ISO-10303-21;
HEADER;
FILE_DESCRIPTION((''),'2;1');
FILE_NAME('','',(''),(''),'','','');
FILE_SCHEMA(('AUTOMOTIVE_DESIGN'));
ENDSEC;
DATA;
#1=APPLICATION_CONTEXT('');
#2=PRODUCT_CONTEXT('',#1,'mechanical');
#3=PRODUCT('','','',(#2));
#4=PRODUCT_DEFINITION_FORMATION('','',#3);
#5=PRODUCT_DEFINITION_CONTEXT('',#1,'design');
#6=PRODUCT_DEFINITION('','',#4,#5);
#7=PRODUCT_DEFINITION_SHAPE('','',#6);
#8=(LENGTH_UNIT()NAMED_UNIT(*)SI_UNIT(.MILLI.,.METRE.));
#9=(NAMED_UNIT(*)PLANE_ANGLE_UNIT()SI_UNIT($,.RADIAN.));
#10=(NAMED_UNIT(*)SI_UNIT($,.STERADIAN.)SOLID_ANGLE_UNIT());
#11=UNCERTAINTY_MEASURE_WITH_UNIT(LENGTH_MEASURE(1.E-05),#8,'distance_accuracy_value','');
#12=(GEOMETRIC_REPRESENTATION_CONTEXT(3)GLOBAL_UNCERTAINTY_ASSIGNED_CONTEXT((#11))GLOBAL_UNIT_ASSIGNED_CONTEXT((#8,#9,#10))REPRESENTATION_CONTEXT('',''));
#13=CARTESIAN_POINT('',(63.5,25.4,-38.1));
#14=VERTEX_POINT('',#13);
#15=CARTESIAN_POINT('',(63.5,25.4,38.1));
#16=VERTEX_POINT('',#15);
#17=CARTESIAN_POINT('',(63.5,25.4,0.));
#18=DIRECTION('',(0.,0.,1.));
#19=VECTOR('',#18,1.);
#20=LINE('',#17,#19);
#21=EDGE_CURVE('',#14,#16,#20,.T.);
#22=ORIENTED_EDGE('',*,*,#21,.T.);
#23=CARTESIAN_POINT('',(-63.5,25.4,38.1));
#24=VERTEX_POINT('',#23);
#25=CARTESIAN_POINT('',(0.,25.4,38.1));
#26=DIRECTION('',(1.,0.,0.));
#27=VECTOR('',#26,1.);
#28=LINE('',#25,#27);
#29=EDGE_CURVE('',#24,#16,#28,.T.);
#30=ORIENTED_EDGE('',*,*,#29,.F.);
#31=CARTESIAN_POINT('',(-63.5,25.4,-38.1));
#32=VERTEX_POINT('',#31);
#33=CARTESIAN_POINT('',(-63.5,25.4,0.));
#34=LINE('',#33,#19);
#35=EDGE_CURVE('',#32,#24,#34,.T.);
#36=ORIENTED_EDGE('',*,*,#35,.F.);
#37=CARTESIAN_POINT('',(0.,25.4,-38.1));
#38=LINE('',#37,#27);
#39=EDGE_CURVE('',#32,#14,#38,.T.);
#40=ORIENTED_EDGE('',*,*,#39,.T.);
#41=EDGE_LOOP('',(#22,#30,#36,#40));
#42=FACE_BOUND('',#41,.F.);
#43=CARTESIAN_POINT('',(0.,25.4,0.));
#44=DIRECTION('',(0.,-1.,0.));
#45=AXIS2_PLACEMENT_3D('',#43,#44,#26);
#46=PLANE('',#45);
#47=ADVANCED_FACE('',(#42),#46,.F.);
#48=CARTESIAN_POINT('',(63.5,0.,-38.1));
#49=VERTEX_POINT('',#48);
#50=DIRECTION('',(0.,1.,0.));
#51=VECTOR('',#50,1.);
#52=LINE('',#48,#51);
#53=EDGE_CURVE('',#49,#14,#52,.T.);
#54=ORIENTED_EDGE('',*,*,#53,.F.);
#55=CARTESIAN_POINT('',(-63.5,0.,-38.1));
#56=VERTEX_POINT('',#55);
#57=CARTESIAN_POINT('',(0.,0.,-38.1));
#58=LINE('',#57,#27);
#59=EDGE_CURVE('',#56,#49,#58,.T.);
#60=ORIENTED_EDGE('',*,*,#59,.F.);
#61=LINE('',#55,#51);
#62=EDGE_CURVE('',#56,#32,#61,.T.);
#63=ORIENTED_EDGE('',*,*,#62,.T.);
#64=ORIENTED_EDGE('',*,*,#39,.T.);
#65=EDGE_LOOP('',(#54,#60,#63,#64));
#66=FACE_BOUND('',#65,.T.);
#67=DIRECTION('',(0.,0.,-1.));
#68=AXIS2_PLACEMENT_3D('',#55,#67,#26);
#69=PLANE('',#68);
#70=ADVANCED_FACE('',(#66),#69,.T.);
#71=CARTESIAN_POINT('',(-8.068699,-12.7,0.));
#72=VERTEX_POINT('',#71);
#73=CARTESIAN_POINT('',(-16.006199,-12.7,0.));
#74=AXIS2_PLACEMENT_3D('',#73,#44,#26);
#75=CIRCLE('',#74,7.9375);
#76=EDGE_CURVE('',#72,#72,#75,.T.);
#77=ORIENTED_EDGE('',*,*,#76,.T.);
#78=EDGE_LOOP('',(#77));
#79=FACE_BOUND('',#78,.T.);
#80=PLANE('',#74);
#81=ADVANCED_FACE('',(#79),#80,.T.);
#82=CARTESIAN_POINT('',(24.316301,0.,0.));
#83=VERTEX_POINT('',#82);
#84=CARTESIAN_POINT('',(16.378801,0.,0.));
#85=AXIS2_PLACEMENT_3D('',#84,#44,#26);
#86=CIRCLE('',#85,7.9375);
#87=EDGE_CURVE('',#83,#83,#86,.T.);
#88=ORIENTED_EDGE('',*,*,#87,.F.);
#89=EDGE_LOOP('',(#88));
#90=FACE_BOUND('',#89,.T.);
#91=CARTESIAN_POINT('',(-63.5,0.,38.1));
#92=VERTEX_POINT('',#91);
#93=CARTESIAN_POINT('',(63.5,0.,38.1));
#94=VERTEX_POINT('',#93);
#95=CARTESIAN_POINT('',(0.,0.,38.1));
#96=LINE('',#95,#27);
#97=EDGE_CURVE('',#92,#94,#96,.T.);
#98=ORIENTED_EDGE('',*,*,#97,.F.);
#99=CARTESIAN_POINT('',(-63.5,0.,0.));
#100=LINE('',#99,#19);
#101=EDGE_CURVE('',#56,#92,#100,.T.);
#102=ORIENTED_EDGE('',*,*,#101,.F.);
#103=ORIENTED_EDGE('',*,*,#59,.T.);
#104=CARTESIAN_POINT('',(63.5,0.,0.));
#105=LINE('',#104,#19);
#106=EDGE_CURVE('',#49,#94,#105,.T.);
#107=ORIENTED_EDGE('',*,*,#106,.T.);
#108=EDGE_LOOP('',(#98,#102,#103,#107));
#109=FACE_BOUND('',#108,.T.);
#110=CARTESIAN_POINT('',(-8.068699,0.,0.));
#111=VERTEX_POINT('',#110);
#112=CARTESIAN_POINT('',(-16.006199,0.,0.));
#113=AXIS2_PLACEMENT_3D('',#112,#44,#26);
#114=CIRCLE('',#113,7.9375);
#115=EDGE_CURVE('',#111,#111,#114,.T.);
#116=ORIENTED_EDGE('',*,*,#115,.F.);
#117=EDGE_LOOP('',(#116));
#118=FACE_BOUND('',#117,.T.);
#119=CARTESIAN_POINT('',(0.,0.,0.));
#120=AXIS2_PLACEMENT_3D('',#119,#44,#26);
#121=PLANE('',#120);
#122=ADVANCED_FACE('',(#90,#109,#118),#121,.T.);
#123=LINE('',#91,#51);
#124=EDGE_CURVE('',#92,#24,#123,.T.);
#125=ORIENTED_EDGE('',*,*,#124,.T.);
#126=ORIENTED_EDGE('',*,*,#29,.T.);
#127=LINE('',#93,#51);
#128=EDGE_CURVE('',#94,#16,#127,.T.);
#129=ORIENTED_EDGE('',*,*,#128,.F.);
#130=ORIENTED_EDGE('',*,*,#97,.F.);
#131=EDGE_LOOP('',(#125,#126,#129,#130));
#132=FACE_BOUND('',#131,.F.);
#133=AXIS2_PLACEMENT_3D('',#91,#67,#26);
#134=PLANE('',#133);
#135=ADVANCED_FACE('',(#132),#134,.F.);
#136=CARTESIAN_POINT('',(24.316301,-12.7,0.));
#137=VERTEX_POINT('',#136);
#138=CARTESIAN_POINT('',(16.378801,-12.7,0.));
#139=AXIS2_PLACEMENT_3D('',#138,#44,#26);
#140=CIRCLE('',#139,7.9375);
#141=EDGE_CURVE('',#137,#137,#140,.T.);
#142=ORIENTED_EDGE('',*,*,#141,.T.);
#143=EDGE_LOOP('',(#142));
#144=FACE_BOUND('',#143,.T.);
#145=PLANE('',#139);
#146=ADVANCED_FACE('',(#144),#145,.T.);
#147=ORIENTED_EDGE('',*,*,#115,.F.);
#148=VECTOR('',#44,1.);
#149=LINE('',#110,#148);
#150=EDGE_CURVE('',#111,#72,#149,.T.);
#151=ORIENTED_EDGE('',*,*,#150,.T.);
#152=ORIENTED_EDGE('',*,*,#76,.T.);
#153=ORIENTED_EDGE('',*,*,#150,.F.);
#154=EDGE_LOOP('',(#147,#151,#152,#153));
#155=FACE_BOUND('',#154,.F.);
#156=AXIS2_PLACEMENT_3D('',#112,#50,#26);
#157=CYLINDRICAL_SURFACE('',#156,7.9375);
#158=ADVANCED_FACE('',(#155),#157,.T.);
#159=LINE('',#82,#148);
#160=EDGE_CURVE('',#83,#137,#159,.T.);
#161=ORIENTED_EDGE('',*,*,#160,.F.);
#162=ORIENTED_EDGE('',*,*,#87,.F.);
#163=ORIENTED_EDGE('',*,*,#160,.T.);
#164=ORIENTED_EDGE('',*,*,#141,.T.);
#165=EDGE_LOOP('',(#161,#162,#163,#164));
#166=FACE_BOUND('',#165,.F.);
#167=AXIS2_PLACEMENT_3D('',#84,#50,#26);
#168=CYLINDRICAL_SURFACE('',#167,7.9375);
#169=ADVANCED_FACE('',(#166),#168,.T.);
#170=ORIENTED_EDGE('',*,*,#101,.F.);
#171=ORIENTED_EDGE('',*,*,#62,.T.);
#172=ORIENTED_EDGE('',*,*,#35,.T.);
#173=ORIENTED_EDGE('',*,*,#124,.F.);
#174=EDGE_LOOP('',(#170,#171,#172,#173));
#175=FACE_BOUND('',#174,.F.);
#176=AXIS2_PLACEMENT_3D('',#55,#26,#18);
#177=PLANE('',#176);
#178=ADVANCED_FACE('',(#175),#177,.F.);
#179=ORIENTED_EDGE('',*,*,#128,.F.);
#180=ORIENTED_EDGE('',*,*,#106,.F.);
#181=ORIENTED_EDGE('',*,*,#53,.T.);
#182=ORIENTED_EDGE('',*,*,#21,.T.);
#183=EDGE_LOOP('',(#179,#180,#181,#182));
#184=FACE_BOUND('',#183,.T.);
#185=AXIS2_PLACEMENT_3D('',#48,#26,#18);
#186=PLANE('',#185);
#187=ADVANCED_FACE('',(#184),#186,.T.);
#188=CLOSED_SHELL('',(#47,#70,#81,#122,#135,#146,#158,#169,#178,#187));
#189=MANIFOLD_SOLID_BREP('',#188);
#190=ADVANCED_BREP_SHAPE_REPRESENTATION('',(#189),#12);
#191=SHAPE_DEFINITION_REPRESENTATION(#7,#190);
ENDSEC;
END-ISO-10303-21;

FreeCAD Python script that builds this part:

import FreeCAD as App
import Part
import Sketcher
from FreeCAD import Vector
Q = App.Units.Quantity


def add_polygon(sketch, points):
    """Adds a closed chain of lines whose ends are joined by coincident constraints."""
    first, n = sketch.GeometryCount, len(points)
    for a, b in zip(points, points[1:] + points[:1]):
        sketch.addGeometry(Part.LineSegment(App.Vector(*a, 0), App.Vector(*b, 0)), False)
    for i in range(n):
        sketch.addConstraint(Sketcher.Constraint("Coincident", first + i, 2, first + (i + 1) % n, 1))

doc = App.newDocument("Part")
body = doc.addObject("PartDesign::Body", "Body")

# Sketch on XZ plane
sketch1 = doc.addObject("Sketcher::SketchObject", "Sketch")
body.addObject(sketch1)
sketch1.AttachmentSupport = (doc.XZ_Plane, [""])
sketch1.MapMode = "FlatFace"
add_polygon(sketch1, [(-64, 38), (-64, -38), (64, -38), (64, 38)])  # lines 0-3
sketch1.addConstraint(Sketcher.Constraint("Vertical", 0))
sketch1.addConstraint(Sketcher.Constraint("Horizontal", 1))
sketch1.addConstraint(Sketcher.Constraint("Vertical", 2))
sketch1.addConstraint(Sketcher.Constraint("Horizontal", 3))
sketch1.addConstraint(Sketcher.Constraint("Symmetric", 0, 2, 2, 2, -1, 1))
sketch1.addConstraint(Sketcher.Constraint("DistanceX", 1, 1, 1, 2, Q("5 in")))
sketch1.addConstraint(Sketcher.Constraint("DistanceY", 0, 2, 0, 1, Q("3 in")))
pad1 = doc.addObject("PartDesign::Pad", "Pad")
body.addObject(pad1)
pad1.Profile = sketch1
pad1.Length = Q("1 in")
pad1.Reversed = True

# Sketch on XZ plane
sketch2 = doc.addObject("Sketcher::SketchObject", "Sketch001")
body.addObject(sketch2)
sketch2.AttachmentSupport = (doc.XZ_Plane, [""])
sketch2.MapMode = "FlatFace"
sketch2.addGeometry(Part.Circle(Vector(-16, 0, 0), Vector(0, 0, 1), 8), False)
sketch2.addGeometry(Part.Circle(Vector(16, 0, 0), Vector(0, 0, 1), 8), False)
sketch2.addConstraint(Sketcher.Constraint("Equal", 0, 1))
sketch2.addConstraint(Sketcher.Constraint("PointOnObject", 0, 3, -1))
sketch2.addConstraint(Sketcher.Constraint("PointOnObject", 1, 3, -1))
sketch2.addConstraint(Sketcher.Constraint("Diameter", 0, Q("0.625 in")))
sketch2.addConstraint(Sketcher.Constraint("DistanceX", 0, 3, 1, 3, Q("1.275 in")))
sketch2.addConstraint(Sketcher.Constraint("DistanceX", 0, 3, -1, 1, 16.006199))
pad2 = doc.addObject("PartDesign::Pad", "Pad001")
body.addObject(pad2)
pad2.Profile = sketch2
pad2.Length = Q("0.5 in")

doc.recompute()
